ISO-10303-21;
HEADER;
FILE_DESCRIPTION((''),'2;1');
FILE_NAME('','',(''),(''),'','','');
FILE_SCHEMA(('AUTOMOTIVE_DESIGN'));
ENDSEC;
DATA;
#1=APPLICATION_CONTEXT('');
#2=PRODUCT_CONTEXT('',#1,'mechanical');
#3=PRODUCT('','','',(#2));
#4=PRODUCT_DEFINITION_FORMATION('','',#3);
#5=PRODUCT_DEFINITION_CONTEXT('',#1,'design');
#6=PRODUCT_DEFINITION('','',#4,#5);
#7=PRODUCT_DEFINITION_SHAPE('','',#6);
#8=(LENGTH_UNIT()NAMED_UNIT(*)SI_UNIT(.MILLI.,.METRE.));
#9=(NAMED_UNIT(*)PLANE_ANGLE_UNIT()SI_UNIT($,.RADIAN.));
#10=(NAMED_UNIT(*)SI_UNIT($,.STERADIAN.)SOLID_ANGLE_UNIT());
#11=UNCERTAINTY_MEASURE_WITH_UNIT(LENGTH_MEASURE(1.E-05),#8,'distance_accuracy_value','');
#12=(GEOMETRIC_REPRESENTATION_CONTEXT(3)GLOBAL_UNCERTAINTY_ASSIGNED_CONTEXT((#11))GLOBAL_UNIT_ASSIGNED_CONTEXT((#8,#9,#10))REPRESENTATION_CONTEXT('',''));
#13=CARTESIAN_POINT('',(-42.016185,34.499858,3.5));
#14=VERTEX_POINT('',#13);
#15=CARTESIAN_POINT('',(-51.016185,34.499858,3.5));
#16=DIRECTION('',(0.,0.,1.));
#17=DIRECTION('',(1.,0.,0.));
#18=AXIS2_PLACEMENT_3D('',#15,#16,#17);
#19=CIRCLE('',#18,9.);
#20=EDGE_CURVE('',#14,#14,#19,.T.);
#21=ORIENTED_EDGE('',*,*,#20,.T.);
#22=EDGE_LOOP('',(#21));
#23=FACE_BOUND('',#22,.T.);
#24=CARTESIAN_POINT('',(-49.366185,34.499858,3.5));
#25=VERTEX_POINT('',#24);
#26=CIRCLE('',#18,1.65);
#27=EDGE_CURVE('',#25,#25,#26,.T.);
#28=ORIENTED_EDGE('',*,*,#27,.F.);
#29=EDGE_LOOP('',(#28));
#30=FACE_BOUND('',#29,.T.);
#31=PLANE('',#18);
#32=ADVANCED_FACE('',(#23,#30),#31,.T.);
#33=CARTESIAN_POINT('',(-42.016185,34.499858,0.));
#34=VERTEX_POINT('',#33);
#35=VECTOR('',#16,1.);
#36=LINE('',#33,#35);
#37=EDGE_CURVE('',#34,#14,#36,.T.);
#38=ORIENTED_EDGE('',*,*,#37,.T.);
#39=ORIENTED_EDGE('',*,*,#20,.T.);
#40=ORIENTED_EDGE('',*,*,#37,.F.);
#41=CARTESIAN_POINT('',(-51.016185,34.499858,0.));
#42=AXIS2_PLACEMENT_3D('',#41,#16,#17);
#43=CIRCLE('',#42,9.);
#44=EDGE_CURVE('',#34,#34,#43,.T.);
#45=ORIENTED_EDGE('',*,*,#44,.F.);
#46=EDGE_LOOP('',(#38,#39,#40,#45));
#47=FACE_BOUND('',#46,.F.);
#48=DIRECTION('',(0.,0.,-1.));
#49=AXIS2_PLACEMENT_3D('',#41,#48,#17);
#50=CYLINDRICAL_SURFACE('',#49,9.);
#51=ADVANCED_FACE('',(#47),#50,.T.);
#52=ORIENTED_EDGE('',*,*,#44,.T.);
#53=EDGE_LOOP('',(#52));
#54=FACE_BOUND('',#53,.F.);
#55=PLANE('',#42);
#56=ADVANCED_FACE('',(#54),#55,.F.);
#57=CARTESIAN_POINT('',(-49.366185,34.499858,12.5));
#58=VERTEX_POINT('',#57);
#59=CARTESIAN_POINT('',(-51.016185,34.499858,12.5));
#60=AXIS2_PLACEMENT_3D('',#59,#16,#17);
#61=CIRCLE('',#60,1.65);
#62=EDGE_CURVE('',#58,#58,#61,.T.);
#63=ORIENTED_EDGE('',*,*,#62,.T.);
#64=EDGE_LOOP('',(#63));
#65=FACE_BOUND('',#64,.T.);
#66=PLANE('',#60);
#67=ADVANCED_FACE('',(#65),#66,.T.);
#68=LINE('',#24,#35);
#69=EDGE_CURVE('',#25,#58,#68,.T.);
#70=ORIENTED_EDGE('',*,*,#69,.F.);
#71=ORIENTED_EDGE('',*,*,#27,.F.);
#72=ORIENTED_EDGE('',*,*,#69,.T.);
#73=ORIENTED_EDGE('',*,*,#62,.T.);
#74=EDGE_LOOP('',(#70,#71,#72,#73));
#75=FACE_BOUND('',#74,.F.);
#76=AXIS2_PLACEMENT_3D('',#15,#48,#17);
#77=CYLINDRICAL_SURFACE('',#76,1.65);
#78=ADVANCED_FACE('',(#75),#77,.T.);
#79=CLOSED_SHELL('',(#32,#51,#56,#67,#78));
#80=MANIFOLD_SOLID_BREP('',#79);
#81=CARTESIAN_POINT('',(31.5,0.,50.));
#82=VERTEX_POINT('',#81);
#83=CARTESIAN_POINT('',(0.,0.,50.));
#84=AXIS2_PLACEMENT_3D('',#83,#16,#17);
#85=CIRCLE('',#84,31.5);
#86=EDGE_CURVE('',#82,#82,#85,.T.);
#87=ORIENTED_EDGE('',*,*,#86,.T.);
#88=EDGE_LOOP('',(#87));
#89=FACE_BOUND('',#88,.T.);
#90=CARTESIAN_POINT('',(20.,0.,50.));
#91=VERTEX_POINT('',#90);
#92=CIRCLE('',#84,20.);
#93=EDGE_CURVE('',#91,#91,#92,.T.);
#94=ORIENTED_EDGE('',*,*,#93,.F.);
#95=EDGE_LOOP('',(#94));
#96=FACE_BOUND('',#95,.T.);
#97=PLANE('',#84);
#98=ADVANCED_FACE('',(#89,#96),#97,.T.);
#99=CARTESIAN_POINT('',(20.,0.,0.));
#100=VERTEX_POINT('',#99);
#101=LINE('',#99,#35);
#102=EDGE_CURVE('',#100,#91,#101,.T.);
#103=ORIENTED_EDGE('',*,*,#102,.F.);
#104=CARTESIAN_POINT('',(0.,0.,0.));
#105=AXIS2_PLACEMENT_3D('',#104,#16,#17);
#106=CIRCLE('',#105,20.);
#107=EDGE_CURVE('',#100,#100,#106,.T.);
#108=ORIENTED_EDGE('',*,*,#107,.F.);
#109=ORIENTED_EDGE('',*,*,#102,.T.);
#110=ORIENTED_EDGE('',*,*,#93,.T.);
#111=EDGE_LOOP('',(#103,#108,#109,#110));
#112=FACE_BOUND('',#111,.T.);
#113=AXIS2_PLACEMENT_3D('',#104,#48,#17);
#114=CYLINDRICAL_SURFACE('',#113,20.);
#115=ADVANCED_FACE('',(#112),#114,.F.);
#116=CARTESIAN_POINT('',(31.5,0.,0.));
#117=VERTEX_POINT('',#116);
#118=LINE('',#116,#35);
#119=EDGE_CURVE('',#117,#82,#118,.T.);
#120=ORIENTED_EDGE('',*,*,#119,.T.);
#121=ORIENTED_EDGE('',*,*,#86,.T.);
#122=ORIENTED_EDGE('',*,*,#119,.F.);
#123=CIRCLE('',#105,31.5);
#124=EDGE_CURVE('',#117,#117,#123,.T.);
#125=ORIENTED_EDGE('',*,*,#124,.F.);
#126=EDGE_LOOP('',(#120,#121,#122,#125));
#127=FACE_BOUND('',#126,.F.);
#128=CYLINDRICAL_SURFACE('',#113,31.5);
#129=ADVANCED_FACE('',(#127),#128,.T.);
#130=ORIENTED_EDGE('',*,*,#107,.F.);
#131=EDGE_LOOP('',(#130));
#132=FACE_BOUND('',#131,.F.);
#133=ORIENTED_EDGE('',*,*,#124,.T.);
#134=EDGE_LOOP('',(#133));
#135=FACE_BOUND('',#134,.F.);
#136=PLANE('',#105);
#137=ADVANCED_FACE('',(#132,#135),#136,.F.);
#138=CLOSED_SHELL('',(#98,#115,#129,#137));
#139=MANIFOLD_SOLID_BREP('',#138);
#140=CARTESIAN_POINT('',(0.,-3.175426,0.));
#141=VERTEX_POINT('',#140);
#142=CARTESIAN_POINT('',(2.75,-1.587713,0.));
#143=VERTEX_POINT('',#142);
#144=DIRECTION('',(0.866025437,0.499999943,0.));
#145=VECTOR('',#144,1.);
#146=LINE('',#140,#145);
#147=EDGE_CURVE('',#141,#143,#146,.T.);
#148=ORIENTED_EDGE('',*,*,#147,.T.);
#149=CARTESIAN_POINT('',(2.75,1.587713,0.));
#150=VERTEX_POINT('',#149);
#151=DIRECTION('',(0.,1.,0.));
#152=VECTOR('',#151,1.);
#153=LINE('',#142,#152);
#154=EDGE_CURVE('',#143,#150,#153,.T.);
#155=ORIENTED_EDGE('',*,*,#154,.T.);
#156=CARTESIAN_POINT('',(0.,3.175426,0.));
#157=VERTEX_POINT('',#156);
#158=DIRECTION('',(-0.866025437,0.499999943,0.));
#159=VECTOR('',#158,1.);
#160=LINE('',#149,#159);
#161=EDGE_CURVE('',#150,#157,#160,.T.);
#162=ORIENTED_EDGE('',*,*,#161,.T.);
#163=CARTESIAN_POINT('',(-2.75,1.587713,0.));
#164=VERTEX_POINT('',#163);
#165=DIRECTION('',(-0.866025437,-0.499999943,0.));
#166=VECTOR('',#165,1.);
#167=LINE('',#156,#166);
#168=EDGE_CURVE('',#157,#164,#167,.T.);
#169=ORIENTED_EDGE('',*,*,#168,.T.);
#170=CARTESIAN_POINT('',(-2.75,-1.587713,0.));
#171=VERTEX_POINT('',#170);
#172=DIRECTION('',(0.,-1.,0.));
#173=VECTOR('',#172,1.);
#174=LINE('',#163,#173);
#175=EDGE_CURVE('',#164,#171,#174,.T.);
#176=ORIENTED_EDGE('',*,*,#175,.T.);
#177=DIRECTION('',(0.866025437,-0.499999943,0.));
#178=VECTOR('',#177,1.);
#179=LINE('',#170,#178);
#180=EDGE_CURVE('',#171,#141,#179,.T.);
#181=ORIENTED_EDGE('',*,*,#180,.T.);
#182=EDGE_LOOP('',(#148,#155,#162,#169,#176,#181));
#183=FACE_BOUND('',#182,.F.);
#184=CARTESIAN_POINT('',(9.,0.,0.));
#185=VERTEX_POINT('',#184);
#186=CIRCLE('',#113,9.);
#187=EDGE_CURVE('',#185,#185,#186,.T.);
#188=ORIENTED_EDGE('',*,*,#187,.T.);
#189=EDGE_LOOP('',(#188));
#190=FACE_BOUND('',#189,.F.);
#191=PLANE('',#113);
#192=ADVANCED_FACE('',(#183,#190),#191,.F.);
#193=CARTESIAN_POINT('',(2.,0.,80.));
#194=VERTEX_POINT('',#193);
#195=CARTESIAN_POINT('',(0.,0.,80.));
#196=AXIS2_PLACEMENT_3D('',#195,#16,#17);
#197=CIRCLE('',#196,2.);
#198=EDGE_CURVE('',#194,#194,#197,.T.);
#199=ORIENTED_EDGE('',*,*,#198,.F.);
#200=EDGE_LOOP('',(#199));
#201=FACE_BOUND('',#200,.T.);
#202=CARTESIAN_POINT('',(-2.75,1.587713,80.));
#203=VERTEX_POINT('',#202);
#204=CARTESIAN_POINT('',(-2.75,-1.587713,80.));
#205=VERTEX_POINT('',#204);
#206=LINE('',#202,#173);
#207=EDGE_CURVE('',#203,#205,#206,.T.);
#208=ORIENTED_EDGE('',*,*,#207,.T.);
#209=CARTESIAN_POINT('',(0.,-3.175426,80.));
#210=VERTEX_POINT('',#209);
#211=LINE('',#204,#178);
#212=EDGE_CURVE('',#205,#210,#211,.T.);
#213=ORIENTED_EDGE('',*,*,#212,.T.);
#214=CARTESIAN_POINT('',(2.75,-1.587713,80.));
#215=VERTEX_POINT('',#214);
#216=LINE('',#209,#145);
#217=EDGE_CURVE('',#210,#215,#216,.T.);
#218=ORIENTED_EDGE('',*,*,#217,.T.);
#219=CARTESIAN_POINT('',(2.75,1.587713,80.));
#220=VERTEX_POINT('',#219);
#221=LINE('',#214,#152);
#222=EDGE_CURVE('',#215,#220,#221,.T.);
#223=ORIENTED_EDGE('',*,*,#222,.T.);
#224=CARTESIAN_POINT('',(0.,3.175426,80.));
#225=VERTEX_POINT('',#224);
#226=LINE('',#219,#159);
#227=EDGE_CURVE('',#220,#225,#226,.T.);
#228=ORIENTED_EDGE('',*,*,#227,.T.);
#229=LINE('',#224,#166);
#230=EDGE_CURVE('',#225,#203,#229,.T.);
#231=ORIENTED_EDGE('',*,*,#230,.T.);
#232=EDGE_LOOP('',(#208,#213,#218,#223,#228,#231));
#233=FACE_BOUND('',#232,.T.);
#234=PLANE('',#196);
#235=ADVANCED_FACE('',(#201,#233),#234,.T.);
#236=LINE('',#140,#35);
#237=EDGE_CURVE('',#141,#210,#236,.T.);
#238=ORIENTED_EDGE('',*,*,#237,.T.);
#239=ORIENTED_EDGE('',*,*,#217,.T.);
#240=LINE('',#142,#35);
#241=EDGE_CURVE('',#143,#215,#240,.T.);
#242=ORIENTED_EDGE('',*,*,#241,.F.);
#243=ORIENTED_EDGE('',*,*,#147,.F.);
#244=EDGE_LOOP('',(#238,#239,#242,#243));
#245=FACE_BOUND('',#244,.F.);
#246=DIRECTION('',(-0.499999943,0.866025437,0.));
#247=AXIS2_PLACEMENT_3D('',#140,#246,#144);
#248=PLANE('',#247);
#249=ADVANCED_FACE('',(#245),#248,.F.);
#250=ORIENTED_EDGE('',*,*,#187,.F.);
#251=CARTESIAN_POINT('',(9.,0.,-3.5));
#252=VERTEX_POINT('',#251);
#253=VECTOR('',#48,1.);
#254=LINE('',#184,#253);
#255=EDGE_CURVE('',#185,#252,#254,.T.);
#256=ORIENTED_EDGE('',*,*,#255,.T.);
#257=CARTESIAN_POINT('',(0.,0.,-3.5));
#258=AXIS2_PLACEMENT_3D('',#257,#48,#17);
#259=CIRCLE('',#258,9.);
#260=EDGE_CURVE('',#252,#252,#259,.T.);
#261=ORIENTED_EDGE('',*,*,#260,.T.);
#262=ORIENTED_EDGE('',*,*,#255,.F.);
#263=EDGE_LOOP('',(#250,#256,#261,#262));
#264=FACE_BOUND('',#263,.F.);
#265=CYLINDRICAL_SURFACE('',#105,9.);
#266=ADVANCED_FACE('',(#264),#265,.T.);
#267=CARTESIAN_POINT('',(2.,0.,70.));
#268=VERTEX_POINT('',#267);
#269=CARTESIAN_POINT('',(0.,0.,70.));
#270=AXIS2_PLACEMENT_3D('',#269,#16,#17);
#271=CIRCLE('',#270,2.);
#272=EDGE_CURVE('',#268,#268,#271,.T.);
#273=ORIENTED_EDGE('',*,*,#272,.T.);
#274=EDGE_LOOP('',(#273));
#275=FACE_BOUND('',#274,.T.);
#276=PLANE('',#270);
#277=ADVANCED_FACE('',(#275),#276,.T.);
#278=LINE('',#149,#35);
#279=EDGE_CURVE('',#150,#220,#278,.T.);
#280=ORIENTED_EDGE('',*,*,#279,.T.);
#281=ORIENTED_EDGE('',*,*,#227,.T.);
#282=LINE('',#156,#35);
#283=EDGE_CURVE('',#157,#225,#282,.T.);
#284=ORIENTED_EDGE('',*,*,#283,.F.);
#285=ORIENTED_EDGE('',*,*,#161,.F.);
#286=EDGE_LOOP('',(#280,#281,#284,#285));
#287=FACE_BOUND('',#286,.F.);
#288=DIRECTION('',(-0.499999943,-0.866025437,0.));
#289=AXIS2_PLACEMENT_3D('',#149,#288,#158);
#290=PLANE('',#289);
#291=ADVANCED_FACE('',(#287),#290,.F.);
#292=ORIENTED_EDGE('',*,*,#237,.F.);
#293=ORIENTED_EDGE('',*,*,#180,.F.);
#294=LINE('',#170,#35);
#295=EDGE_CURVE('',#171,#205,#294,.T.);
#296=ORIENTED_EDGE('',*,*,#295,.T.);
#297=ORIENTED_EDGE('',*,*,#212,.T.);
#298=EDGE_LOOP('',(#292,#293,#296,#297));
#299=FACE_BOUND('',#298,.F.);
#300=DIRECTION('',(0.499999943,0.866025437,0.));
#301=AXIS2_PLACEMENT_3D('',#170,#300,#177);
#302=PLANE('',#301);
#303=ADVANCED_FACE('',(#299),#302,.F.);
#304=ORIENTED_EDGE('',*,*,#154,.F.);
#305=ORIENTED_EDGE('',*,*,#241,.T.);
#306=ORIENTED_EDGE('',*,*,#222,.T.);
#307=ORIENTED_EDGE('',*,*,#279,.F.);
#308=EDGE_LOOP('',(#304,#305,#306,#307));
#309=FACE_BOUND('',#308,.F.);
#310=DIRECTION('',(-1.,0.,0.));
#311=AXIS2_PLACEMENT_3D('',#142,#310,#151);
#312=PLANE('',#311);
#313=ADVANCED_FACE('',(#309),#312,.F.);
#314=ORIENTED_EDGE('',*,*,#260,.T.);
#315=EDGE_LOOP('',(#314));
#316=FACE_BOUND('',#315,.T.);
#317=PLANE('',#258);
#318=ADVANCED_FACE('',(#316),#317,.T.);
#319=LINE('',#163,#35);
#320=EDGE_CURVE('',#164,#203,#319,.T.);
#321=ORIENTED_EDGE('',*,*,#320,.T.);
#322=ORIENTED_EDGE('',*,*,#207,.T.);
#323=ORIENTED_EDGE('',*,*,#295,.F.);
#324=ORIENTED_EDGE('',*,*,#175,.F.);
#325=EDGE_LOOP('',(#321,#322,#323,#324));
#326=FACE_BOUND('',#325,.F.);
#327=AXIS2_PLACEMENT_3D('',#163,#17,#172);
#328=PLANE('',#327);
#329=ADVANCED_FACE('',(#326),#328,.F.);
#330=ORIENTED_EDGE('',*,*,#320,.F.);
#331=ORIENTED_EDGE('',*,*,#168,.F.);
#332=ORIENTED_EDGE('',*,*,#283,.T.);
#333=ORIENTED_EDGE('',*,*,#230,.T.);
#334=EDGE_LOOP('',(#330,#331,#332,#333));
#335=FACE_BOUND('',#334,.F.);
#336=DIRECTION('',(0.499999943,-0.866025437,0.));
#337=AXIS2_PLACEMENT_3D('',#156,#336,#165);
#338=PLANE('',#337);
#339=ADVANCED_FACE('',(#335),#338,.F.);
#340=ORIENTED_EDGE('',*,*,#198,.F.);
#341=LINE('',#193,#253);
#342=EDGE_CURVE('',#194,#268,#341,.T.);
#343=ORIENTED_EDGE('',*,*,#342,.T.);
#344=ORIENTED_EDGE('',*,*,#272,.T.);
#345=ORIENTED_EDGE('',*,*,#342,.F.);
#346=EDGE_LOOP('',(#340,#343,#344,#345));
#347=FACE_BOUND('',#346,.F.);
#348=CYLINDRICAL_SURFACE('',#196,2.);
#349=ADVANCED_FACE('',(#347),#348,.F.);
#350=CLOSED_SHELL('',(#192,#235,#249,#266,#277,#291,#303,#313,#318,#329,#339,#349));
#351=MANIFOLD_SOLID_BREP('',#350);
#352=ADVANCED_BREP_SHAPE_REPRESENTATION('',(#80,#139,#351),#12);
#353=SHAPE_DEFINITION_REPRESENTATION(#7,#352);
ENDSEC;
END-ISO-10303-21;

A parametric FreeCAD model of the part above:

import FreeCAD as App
import Part
import Sketcher

V = App.Vector
Q = App.Units.Quantity

doc = App.newDocument("Part")
params = doc.addObject("Spreadsheet::Sheet", "Params")
for row, (alias, value) in enumerate([
    ("sketch1_diameter", "63 mm"),
    ("sketch1_diameter2", "40 mm"),
    ("pad1_length", "50 mm"),
    ("pad2_length", "80 mm"),
    ("sketch3_diameter", "18 mm"),
    ("pad3_length", "3.5 mm"),
    ("sketch4_diameter", "4 mm"),
    ("pocket1_length", "10 mm"),
    ("sketch5_diameter", "18 mm"),
    ("pad4_length", "3.5 mm"),
    ("sketch6_diameter", "3.3 mm"),
    ("pad5_length", "9 mm"),
], start=1):
    params.set(f"A{row}", alias)
    params.set(f"B{row}", "=" + value)
    params.setAlias(f"B{row}", alias)

body = doc.addObject("PartDesign::Body", "Body")

# Sketch on XY plane
sketch1 = body.newObject("Sketcher::SketchObject", "Sketch")
sketch1.AttachmentSupport = (doc.getObject("XY_Plane"), [""])
sketch1.MapMode = "FlatFace"
sketch1.addGeometry(Part.Circle(V(0, 0, 0), V(0, 0, 1), 32), False)
sketch1.addGeometry(Part.Circle(V(0, 0, 0), V(0, 0, 1), 20), False)
sketch1.addConstraint(Sketcher.Constraint("Coincident", 0, 3, -1, 1))
sketch1.addConstraint(Sketcher.Constraint("Coincident", 1, 3, -1, 1))
sketch1.addConstraint(Sketcher.Constraint("Diameter", 0, Q("63 mm")))
sketch1.addConstraint(Sketcher.Constraint("Diameter", 1, Q("40 mm")))
sketch1.setExpression("Constraints[2]", "Params.sketch1_diameter")
sketch1.setExpression("Constraints[3]", "Params.sketch1_diameter2")
pad1 = body.newObject("PartDesign::Pad", "Pad")
pad1.Profile = sketch1
pad1.setExpression("Length", "Params.pad1_length")
body2 = doc.addObject("PartDesign::Body", "Body001")

# Sketch on XY plane
sketch2 = body2.newObject("Sketcher::SketchObject", "Sketch001")
sketch2.AttachmentSupport = (doc.getObject("XY_Plane001"), [""])
sketch2.MapMode = "FlatFace"
sketch2.addGeometry(Part.LineSegment(V(2.8, -1.6, 0), V(2.8, 1.6, 0)), False)
sketch2.addGeometry(Part.LineSegment(V(2.8, 1.6, 0), V(0, 3.2, 0)), False)
sketch2.addGeometry(Part.LineSegment(V(0, 3.2, 0), V(-2.8, 1.6, 0)), False)
sketch2.addGeometry(Part.LineSegment(V(-2.8, 1.6, 0), V(-2.8, -1.6, 0)), False)
sketch2.addGeometry(Part.LineSegment(V(-2.8, -1.6, 0), V(0, -3.2, 0)), False)
sketch2.addGeometry(Part.LineSegment(V(0, -3.2, 0), V(2.8, -1.6, 0)), False)
sketch2.addConstraint(Sketcher.Constraint("Coincident", 0, 2, 1, 1))
sketch2.addConstraint(Sketcher.Constraint("Coincident", 1, 2, 2, 1))
sketch2.addConstraint(Sketcher.Constraint("Coincident", 2, 2, 3, 1))
sketch2.addConstraint(Sketcher.Constraint("Coincident", 3, 2, 4, 1))
sketch2.addConstraint(Sketcher.Constraint("Coincident", 4, 2, 5, 1))
sketch2.addConstraint(Sketcher.Constraint("Coincident", 5, 2, 0, 1))
sketch2.addConstraint(Sketcher.Constraint("Vertical", 0))
sketch2.addConstraint(Sketcher.Constraint("Vertical", 3))
sketch2.addConstraint(Sketcher.Constraint("Symmetric", 0, 2, 3, 2, -1, 1))
sketch2.addConstraint(Sketcher.Constraint("Symmetric", 1, 2, 4, 2, -1, 1))
sketch2.addConstraint(Sketcher.Constraint("PointOnObject", 1, 2, -2))
sketch2.addConstraint(Sketcher.Constraint("Parallel", 2, 5))
sketch2.addConstraint(Sketcher.Constraint("Horizontal", 0, 2, 2, 2))
sketch2.addConstraint(Sketcher.Constraint("Angle", 1, Q("150.000004 deg")))
sketch2.addConstraint(Sketcher.Constraint("DistanceX", 2, 2, 0, 2, Q("5.5 mm")))
sketch2.addConstraint(Sketcher.Constraint("DistanceY", 0, 1, 0, 2, Q("3.175426 mm")))
pad2 = body2.newObject("PartDesign::Pad", "Pad001")
pad2.Profile = sketch2
pad2.setExpression("Length", "Params.pad2_length")

# Sketch on XY plane
sketch3 = body2.newObject("Sketcher::SketchObject", "Sketch002")
sketch3.AttachmentSupport = (doc.getObject("XY_Plane001"), [""])
sketch3.MapMode = "FlatFace"
sketch3.addGeometry(Part.Circle(V(0, 0, 0), V(0, 0, 1), 9), False)
sketch3.addConstraint(Sketcher.Constraint("Coincident", 0, 3, -1, 1))
sketch3.addConstraint(Sketcher.Constraint("Diameter", 0, Q("18 mm")))
sketch3.setExpression("Constraints[1]", "Params.sketch3_diameter")
pad3 = body2.newObject("PartDesign::Pad", "Pad002")
pad3.Profile = sketch3
pad3.setExpression("Length", "Params.pad3_length")
pad3.Reversed = True

# Sketch on XY plane
sketch4 = body2.newObject("Sketcher::SketchObject", "Sketch003")
sketch4.AttachmentSupport = (doc.getObject("XY_Plane001"), [""])
sketch4.MapMode = "FlatFace"
sketch4.AttachmentOffset = App.Placement(V(0, 0, 80), App.Rotation())
sketch4.addGeometry(Part.Circle(V(0, 0, 0), V(0, 0, 1), 2), False)
sketch4.addConstraint(Sketcher.Constraint("Coincident", 0, 3, -1, 1))
sketch4.addConstraint(Sketcher.Constraint("Diameter", 0, Q("4 mm")))
sketch4.setExpression("Constraints[1]", "Params.sketch4_diameter")
pocket1 = body2.newObject("PartDesign::Pocket", "Pocket")
pocket1.Profile = sketch4
pocket1.setExpression("Length", "Params.pocket1_length")
body3 = doc.addObject("PartDesign::Body", "Body002")

# Sketch on XY plane
sketch5 = body3.newObject("Sketcher::SketchObject", "Sketch004")
sketch5.AttachmentSupport = (doc.getObject("XY_Plane002"), [""])
sketch5.MapMode = "FlatFace"
sketch5.addGeometry(Part.Circle(V(-51, 34, 0), V(0, 0, 1), 9), False)
sketch5.addConstraint(Sketcher.Constraint("Diameter", 0, Q("18 mm")))
sketch5.addConstraint(Sketcher.Constraint("DistanceY", -1, 1, 0, 3, Q("34.499858 mm")))
sketch5.addConstraint(Sketcher.Constraint("DistanceX", 0, 3, -1, 1, Q("51.016185 mm")))
sketch5.setExpression("Constraints[0]", "Params.sketch5_diameter")
pad4 = body3.newObject("PartDesign::Pad", "Pad003")
pad4.Profile = sketch5
pad4.setExpression("Length", "Params.pad4_length")

# Sketch on XY plane
sketch6 = body3.newObject("Sketcher::SketchObject", "Sketch005")
sketch6.AttachmentSupport = (doc.getObject("XY_Plane002"), [""])
sketch6.MapMode = "FlatFace"
sketch6.AttachmentOffset = App.Placement(V(0, 0, 3.5), App.Rotation())
sketch6.addGeometry(Part.Circle(V(-51, 34.5, 0), V(0, 0, 1), 1.6), False)
sketch6.addConstraint(Sketcher.Constraint("Diameter", 0, Q("3.3 mm")))
sketch6.addConstraint(Sketcher.Constraint("DistanceY", -1, 1, 0, 3, Q("34.499858 mm")))
sketch6.addConstraint(Sketcher.Constraint("DistanceX", 0, 3, -1, 1, Q("51.016185 mm")))
sketch6.setExpression("Constraints[0]", "Params.sketch6_diameter")
pad5 = body3.newObject("PartDesign::Pad", "Pad004")
pad5.Profile = sketch6
pad5.setExpression("Length", "Params.pad5_length")

doc.recompute()
